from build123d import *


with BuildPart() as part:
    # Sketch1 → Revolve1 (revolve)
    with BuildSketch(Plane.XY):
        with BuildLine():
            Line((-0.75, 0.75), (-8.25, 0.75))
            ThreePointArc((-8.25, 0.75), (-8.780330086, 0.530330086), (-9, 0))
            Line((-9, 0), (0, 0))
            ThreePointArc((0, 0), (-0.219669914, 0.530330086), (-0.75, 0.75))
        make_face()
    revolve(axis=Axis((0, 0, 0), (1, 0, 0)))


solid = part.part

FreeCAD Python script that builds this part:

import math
import FreeCAD as App
import Part
import Sketcher

V = App.Vector

doc = App.newDocument("Part")
body = doc.addObject("PartDesign::Body", "Body")

sketch1 = doc.addObject("Sketcher::SketchObject", "Sketch")
body.addObject(sketch1)
sketch1.AttachmentSupport = (doc.XY_Plane, [""])
sketch1.MapMode = "FlatFace"
sketch1.addGeometry(Part.LineSegment(V(-0.8, 0.8, 0), V(-8.2, 0.8, 0)), False)
sketch1.addGeometry(Part.ArcOfCircle(Part.Circle(V(-8.2, 0, 0), V(0, 0, 1), 0.8), math.radians(90), math.radians(180)), False)
sketch1.addGeometry(Part.LineSegment(V(-9, 0, 0), V(0, 0, 0)), False)
sketch1.addGeometry(Part.ArcOfCircle(Part.Circle(V(-0.8, 0, 0), V(0, 0, 1), 0.8), math.radians(0), math.radians(90)), False)
sketch1.addConstraint(Sketcher.Constraint("Tangent", 0, 2, 1, 1))
sketch1.addConstraint(Sketcher.Constraint("Coincident", 1, 2, 2, 1))
sketch1.addConstraint(Sketcher.Constraint("Coincident", 2, 2, 3, 1))
sketch1.addConstraint(Sketcher.Constraint("Tangent", 3, 2, 0, 1))
sketch1.addConstraint(Sketcher.Constraint("Horizontal", 0))
sketch1.addConstraint(Sketcher.Constraint("Horizontal", 2))
sketch1.addConstraint(Sketcher.Constraint("Coincident", 2, 2, -1, 1))
sketch1.addConstraint(Sketcher.Constraint("Equal", 1, 3))
sketch1.addConstraint(Sketcher.Constraint("PointOnObject", 1, 3, -1))
sketch1.addConstraint(Sketcher.Constraint("DistanceX", 2, 1, 2, 2, 9.0))
sketch1.addConstraint(Sketcher.Constraint("Radius", 1, 0.75))
revolution = doc.addObject("PartDesign::Revolution", "Revolution")
body.addObject(revolution)
revolution.Profile = sketch1
revolution.ReferenceAxis = (sketch1, ["H_Axis"])
revolution.Angle = 360

doc.recompute()
